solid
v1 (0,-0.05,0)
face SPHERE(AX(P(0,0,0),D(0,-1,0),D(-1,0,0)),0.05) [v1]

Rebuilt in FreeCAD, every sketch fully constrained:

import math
import FreeCAD as App
import Part
import Sketcher
from FreeCAD import Vector

doc = App.newDocument("Part")
body = doc.addObject("PartDesign::Body", "Body")

# Sketch on XY plane
sketch1 = body.newObject("Sketcher::SketchObject", "Sketch")
sketch1.AttachmentSupport = (doc.getObject("XY_Plane"), [""])
sketch1.MapMode = "FlatFace"
sketch1.addGeometry([
    Part.LineSegment(Vector(0, -0.05, 0), Vector(0, 0.05, 0)),
    Part.ArcOfCircle(Part.Circle(Vector(0, 0, 0), Vector(0, 0, 1), 0.05), math.radians(90), math.radians(270)),
], False)
sketch1.addConstraint([
    Sketcher.Constraint("Coincident", 0, 1, 1, 2),
    Sketcher.Constraint("Coincident", 1, 1, 0, 2),
    Sketcher.Constraint("Vertical", 0),
    Sketcher.Constraint("Coincident", 1, 3, -1, 1),
    Sketcher.Constraint("PointOnObject", 0, 1, -2),
    Sketcher.Constraint("Radius", 1, 0.05),
])
revolution = body.newObject("PartDesign::Revolution", "Revolution")
revolution.Profile = sketch1
revolution.ReferenceAxis = (sketch1, ["V_Axis"])
revolution.Angle = 360

doc.recompute()
